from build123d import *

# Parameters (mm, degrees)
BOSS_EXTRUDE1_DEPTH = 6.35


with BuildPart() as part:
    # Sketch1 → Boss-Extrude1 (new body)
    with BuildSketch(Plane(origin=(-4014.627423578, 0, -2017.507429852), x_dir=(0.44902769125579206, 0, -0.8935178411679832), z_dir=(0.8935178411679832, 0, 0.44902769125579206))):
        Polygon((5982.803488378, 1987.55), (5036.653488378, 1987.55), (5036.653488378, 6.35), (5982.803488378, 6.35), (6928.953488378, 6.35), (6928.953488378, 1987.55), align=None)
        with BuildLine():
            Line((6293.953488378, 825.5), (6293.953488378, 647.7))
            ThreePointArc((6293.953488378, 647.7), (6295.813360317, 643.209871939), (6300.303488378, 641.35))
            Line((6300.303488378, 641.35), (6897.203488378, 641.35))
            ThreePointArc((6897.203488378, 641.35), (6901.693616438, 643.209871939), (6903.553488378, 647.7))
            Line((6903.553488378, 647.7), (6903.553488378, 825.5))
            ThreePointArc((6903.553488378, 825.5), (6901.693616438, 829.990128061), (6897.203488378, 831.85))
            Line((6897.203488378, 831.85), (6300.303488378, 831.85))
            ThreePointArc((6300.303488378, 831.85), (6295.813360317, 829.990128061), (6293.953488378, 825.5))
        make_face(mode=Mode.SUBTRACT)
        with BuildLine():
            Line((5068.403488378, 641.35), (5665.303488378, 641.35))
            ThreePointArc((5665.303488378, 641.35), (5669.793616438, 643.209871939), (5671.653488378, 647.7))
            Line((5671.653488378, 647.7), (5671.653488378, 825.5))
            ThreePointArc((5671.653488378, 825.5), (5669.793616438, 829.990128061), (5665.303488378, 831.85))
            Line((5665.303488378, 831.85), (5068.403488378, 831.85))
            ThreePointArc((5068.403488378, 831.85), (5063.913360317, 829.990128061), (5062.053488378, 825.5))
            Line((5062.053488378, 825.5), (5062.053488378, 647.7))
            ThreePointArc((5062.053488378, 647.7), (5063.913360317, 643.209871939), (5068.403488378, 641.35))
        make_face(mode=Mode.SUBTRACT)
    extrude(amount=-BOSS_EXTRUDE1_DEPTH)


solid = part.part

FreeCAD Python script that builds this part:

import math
import FreeCAD as App
import Part
import Sketcher

V = App.Vector
Q = App.Units.Quantity

doc = App.newDocument("Part")
body = doc.addObject("PartDesign::Body", "Body")

# Sketch on an angled plane
sketch1 = body.newObject("Sketcher::SketchObject", "Sketch")
sketch1.Placement = App.Placement(V(-4014.627424, 0, -2017.50743), App.Rotation(V(0.449027691, 0, -0.893517841), V(0, 0.999999999, 0), V(0.893517841, 0, 0.449027691), "ZXY"))
sketch1.addGeometry([
    Part.LineSegment(V(5037, 1988, 0), V(5037, 6, 0)),  # 0
    Part.LineSegment(V(5037, 6, 0), V(6929, 6, 0)),  # 1
    Part.LineSegment(V(6929, 6, 0), V(6929, 1988, 0)),  # 2
    Part.LineSegment(V(6929, 1988, 0), V(5037, 1988, 0)),  # 3
    Part.LineSegment(V(6294, 648, 0), V(6294, 825, 0)),  # 4
    Part.ArcOfCircle(Part.Circle(V(6300, 825, 0), V(0, 0, 1), 6), math.radians(90), math.radians(180)),  # 5
    Part.LineSegment(V(6300, 832, 0), V(6897, 832, 0)),  # 6
    Part.ArcOfCircle(Part.Circle(V(6897, 825, 0), V(0, 0, 1), 6), math.radians(0), math.radians(90)),  # 7
    Part.LineSegment(V(6904, 825, 0), V(6904, 648, 0)),  # 8
    Part.ArcOfCircle(Part.Circle(V(6897, 648, 0), V(0, 0, 1), 6), math.radians(-90), math.radians(0)),  # 9
    Part.LineSegment(V(6897, 641, 0), V(6300, 641, 0)),  # 10
    Part.ArcOfCircle(Part.Circle(V(6300, 648, 0), V(0, 0, 1), 6), math.radians(180), math.radians(270)),  # 11
    Part.LineSegment(V(5665, 641, 0), V(5068, 641, 0)),  # 12
    Part.ArcOfCircle(Part.Circle(V(5068, 648, 0), V(0, 0, 1), 6), math.radians(180), math.radians(270)),  # 13
    Part.LineSegment(V(5062, 648, 0), V(5062, 825, 0)),  # 14
    Part.ArcOfCircle(Part.Circle(V(5068, 825, 0), V(0, 0, 1), 6), math.radians(90), math.radians(180)),  # 15
    Part.LineSegment(V(5068, 832, 0), V(5665, 832, 0)),  # 16
    Part.ArcOfCircle(Part.Circle(V(5665, 825, 0), V(0, 0, 1), 6), math.radians(0), math.radians(90)),  # 17
    Part.LineSegment(V(5672, 825, 0), V(5672, 648, 0)),  # 18
    Part.ArcOfCircle(Part.Circle(V(5665, 648, 0), V(0, 0, 1), 6), math.radians(-90), math.radians(0)),  # 19
], False)
sketch1.addConstraint([
    Sketcher.Constraint("Coincident", 0, 2, 1, 1),
    Sketcher.Constraint("Coincident", 1, 2, 2, 1),
    Sketcher.Constraint("Coincident", 2, 2, 3, 1),
    Sketcher.Constraint("Coincident", 3, 2, 0, 1),
    Sketcher.Constraint("Tangent", 4, 2, 5, 2),
    Sketcher.Constraint("Tangent", 5, 1, 6, 1),
    Sketcher.Constraint("Tangent", 6, 2, 7, 2),
    Sketcher.Constraint("Tangent", 7, 1, 8, 1),
    Sketcher.Constraint("Tangent", 8, 2, 9, 2),
    Sketcher.Constraint("Tangent", 9, 1, 10, 1),
    Sketcher.Constraint("Tangent", 10, 2, 11, 2),
    Sketcher.Constraint("Tangent", 11, 1, 4, 1),
    Sketcher.Constraint("Tangent", 12, 2, 13, 2),
    Sketcher.Constraint("Tangent", 13, 1, 14, 1),
    Sketcher.Constraint("Tangent", 14, 2, 15, 2),
    Sketcher.Constraint("Tangent", 15, 1, 16, 1),
    Sketcher.Constraint("Tangent", 16, 2, 17, 2),
    Sketcher.Constraint("Tangent", 17, 1, 18, 1),
    Sketcher.Constraint("Tangent", 18, 2, 19, 2),
    Sketcher.Constraint("Tangent", 19, 1, 12, 1),
    Sketcher.Constraint("Vertical", 0),
    Sketcher.Constraint("Horizontal", 1),
    Sketcher.Constraint("Vertical", 2),
    Sketcher.Constraint("Horizontal", 3),
    Sketcher.Constraint("Vertical", 4),
    Sketcher.Constraint("Horizontal", 6),
    Sketcher.Constraint("Vertical", 8),
    Sketcher.Constraint("Horizontal", 10),
    Sketcher.Constraint("Horizontal", 12),
    Sketcher.Constraint("Vertical", 14),
    Sketcher.Constraint("Horizontal", 16),
    Sketcher.Constraint("Vertical", 18),
    Sketcher.Constraint("Equal", 5, 7),
    Sketcher.Constraint("Equal", 7, 9),
    Sketcher.Constraint("Equal", 9, 11),
    Sketcher.Constraint("Equal", 11, 13),
    Sketcher.Constraint("Equal", 13, 15),
    Sketcher.Constraint("Equal", 15, 17),
    Sketcher.Constraint("Equal", 17, 19),
    Sketcher.Constraint("Horizontal", 11, 3, 13, 3),
    Sketcher.Constraint("Horizontal", 7, 3, 15, 3),
    Sketcher.Constraint("Equal", 10, 12),
    Sketcher.Constraint("DistanceY", 0, 2, 0, 1, Q("77.9999999 in")),
    Sketcher.Constraint("DistanceY", 4, 1, 4, 2, Q("7 in")),
    Sketcher.Constraint("Radius", 5, Q("0.25 in")),
    Sketcher.Constraint("DistanceX", 1, 1, 1, 2, Q("74.5 in")),
    Sketcher.Constraint("DistanceX", 6, 1, 6, 2, Q("23.5 in")),
    Sketcher.Constraint("DistanceX", 13, 3, 9, 3, Q("72 in")),
    Sketcher.Constraint("DistanceY", 0, 2, 12, 2, Q("25 in")),
    Sketcher.Constraint("DistanceY", -1, 1, 5, 3, Q("32.5 in")),
    Sketcher.Constraint("DistanceX", 0, 2, 13, 3, Q("1.25 in")),
    Sketcher.Constraint("DistanceX", -1, 1, 5, 3, 6300.303485),
])
pad1 = body.newObject("PartDesign::Pad", "Pad")
pad1.Profile = sketch1
pad1.Length = Q("0.25 in")
pad1.Reversed = True

doc.recompute()
